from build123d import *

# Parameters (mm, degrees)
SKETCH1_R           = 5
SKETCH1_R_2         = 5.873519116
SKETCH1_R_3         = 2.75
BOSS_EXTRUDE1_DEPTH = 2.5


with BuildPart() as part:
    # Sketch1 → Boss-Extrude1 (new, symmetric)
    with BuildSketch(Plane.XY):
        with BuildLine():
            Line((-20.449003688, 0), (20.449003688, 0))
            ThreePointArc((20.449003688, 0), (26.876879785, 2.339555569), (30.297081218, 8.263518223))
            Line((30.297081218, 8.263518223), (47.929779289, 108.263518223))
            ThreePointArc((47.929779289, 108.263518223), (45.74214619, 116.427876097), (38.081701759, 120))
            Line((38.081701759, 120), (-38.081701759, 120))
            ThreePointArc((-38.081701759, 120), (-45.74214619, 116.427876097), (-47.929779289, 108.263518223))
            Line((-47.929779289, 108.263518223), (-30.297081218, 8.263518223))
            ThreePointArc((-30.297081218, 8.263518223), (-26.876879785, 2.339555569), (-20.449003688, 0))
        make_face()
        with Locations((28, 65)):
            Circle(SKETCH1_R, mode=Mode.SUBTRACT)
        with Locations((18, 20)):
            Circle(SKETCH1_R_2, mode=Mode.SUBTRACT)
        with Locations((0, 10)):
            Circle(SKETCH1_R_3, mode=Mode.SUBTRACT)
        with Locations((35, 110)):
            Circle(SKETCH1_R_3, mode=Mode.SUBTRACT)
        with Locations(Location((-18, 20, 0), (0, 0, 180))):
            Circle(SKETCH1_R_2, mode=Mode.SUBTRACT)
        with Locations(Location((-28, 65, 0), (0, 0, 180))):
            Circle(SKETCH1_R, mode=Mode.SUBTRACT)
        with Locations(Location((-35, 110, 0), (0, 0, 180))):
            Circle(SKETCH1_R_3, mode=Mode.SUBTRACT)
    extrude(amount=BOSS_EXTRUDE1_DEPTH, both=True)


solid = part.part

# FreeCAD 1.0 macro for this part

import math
import FreeCAD as App
import Part
import Sketcher
Q = App.Units.Quantity

doc = App.newDocument("Part")
body = doc.addObject("PartDesign::Body", "Body")

sketch1 = body.newObject("Sketcher::SketchObject", "Sketch")
sketch1.AttachmentSupport = (doc.getObject("XY_Plane"), [""])
sketch1.MapMode = "FlatFace"
sketch1.addGeometry([
    Part.LineSegment(App.Vector(-20.4, 0, 0), App.Vector(20.4, 0, 0)),
    Part.ArcOfCircle(Part.Circle(App.Vector(20.4, 10, 0), App.Vector(0, 0, 1), 10), math.radians(-90), math.radians(-10)),
    Part.LineSegment(App.Vector(30.3, 8.3, 0), App.Vector(47.9, 108.3, 0)),
    Part.ArcOfCircle(Part.Circle(App.Vector(38.1, 110, 0), App.Vector(0, 0, 1), 10), math.radians(-10), math.radians(90)),
    Part.LineSegment(App.Vector(38.1, 120, 0), App.Vector(-38.1, 120, 0)),
    Part.ArcOfCircle(Part.Circle(App.Vector(-38.1, 110, 0), App.Vector(0, 0, 1), 10), math.radians(90), math.radians(190)),
    Part.LineSegment(App.Vector(-47.9, 108.3, 0), App.Vector(-30.3, 8.3, 0)),
    Part.ArcOfCircle(Part.Circle(App.Vector(-20.4, 10, 0), App.Vector(0, 0, 1), 10), math.radians(-170), math.radians(-90)),
    Part.Circle(App.Vector(-18, 20, 0), App.Vector(0, 0, 1), 5.9),
    Part.Circle(App.Vector(0, 10, 0), App.Vector(0, 0, 1), 2.8),
    Part.Circle(App.Vector(18, 20, 0), App.Vector(0, 0, 1), 5.9),
    Part.Circle(App.Vector(-28, 65, 0), App.Vector(0, 0, 1), 5),
    Part.Circle(App.Vector(-35, 110, 0), App.Vector(0, 0, 1), 2.8),
    Part.Circle(App.Vector(28, 65, 0), App.Vector(0, 0, 1), 5),
    Part.Circle(App.Vector(35, 110, 0), App.Vector(0, 0, 1), 2.8),
], False)
sketch1.addConstraint([
    Sketcher.Constraint("Tangent", 0, 2, 1, 1),
    Sketcher.Constraint("Tangent", 1, 2, 2, 1),
    Sketcher.Constraint("Tangent", 2, 2, 3, 1),
    Sketcher.Constraint("Tangent", 3, 2, 4, 1),
    Sketcher.Constraint("Tangent", 4, 2, 5, 1),
    Sketcher.Constraint("Tangent", 5, 2, 6, 1),
    Sketcher.Constraint("Tangent", 6, 2, 7, 1),
    Sketcher.Constraint("Tangent", 7, 2, 0, 1),
    Sketcher.Constraint("Horizontal", 0),
    Sketcher.Constraint("Horizontal", 4),
    Sketcher.Constraint("Equal", 1, 3),
    Sketcher.Constraint("Equal", 3, 5),
    Sketcher.Constraint("Equal", 5, 7),
    Sketcher.Constraint("Equal", 8, 10),
    Sketcher.Constraint("Equal", 9, 12),
    Sketcher.Constraint("Equal", 11, 13),
    Sketcher.Constraint("Equal", 12, 14),
    Sketcher.Constraint("Symmetric", 0, 2, 7, 2, -1, 1),
    Sketcher.Constraint("Symmetric", 8, 3, 10, 3, -2),
    Sketcher.Constraint("Symmetric", 11, 3, 13, 3, -2),
    Sketcher.Constraint("Symmetric", 12, 3, 14, 3, -2),
    Sketcher.Constraint("PointOnObject", 9, 3, -2),
    Sketcher.Constraint("Horizontal", 7, 3, 9, 3),
    Sketcher.Constraint("Horizontal", 5, 3, 12, 3),
    Sketcher.Constraint("Horizontal", 2, 2, 5, 2),
    Sketcher.Constraint("Diameter", 11, 10.0),
    Sketcher.Constraint("Radius", 1, 10.0),
    Sketcher.Constraint("Diameter", 9, 5.5),
    Sketcher.Constraint("Angle", 2, Q("80 deg")),
    Sketcher.Constraint("DistanceY", -1, 1, 3, 3, 110.0),
    Sketcher.Constraint("DistanceX", 8, 3, -1, 1, 18.0),
    Sketcher.Constraint("DistanceY", -1, 1, 8, 3, 20.0),
    Sketcher.Constraint("DistanceX", 11, 3, -1, 1, 28.0),
    Sketcher.Constraint("DistanceY", -1, 1, 11, 3, 65.0),
    Sketcher.Constraint("DistanceX", 12, 3, -1, 1, 35.0),
    Sketcher.Constraint("Diameter", 8, 11.747038),
    Sketcher.Constraint("DistanceX", -1, 1, 3, 3, 38.081702),
])
pad1 = body.newObject("PartDesign::Pad", "Pad")
pad1.Profile = sketch1
pad1.Length = 5
pad1.Midplane = True

doc.recompute()
